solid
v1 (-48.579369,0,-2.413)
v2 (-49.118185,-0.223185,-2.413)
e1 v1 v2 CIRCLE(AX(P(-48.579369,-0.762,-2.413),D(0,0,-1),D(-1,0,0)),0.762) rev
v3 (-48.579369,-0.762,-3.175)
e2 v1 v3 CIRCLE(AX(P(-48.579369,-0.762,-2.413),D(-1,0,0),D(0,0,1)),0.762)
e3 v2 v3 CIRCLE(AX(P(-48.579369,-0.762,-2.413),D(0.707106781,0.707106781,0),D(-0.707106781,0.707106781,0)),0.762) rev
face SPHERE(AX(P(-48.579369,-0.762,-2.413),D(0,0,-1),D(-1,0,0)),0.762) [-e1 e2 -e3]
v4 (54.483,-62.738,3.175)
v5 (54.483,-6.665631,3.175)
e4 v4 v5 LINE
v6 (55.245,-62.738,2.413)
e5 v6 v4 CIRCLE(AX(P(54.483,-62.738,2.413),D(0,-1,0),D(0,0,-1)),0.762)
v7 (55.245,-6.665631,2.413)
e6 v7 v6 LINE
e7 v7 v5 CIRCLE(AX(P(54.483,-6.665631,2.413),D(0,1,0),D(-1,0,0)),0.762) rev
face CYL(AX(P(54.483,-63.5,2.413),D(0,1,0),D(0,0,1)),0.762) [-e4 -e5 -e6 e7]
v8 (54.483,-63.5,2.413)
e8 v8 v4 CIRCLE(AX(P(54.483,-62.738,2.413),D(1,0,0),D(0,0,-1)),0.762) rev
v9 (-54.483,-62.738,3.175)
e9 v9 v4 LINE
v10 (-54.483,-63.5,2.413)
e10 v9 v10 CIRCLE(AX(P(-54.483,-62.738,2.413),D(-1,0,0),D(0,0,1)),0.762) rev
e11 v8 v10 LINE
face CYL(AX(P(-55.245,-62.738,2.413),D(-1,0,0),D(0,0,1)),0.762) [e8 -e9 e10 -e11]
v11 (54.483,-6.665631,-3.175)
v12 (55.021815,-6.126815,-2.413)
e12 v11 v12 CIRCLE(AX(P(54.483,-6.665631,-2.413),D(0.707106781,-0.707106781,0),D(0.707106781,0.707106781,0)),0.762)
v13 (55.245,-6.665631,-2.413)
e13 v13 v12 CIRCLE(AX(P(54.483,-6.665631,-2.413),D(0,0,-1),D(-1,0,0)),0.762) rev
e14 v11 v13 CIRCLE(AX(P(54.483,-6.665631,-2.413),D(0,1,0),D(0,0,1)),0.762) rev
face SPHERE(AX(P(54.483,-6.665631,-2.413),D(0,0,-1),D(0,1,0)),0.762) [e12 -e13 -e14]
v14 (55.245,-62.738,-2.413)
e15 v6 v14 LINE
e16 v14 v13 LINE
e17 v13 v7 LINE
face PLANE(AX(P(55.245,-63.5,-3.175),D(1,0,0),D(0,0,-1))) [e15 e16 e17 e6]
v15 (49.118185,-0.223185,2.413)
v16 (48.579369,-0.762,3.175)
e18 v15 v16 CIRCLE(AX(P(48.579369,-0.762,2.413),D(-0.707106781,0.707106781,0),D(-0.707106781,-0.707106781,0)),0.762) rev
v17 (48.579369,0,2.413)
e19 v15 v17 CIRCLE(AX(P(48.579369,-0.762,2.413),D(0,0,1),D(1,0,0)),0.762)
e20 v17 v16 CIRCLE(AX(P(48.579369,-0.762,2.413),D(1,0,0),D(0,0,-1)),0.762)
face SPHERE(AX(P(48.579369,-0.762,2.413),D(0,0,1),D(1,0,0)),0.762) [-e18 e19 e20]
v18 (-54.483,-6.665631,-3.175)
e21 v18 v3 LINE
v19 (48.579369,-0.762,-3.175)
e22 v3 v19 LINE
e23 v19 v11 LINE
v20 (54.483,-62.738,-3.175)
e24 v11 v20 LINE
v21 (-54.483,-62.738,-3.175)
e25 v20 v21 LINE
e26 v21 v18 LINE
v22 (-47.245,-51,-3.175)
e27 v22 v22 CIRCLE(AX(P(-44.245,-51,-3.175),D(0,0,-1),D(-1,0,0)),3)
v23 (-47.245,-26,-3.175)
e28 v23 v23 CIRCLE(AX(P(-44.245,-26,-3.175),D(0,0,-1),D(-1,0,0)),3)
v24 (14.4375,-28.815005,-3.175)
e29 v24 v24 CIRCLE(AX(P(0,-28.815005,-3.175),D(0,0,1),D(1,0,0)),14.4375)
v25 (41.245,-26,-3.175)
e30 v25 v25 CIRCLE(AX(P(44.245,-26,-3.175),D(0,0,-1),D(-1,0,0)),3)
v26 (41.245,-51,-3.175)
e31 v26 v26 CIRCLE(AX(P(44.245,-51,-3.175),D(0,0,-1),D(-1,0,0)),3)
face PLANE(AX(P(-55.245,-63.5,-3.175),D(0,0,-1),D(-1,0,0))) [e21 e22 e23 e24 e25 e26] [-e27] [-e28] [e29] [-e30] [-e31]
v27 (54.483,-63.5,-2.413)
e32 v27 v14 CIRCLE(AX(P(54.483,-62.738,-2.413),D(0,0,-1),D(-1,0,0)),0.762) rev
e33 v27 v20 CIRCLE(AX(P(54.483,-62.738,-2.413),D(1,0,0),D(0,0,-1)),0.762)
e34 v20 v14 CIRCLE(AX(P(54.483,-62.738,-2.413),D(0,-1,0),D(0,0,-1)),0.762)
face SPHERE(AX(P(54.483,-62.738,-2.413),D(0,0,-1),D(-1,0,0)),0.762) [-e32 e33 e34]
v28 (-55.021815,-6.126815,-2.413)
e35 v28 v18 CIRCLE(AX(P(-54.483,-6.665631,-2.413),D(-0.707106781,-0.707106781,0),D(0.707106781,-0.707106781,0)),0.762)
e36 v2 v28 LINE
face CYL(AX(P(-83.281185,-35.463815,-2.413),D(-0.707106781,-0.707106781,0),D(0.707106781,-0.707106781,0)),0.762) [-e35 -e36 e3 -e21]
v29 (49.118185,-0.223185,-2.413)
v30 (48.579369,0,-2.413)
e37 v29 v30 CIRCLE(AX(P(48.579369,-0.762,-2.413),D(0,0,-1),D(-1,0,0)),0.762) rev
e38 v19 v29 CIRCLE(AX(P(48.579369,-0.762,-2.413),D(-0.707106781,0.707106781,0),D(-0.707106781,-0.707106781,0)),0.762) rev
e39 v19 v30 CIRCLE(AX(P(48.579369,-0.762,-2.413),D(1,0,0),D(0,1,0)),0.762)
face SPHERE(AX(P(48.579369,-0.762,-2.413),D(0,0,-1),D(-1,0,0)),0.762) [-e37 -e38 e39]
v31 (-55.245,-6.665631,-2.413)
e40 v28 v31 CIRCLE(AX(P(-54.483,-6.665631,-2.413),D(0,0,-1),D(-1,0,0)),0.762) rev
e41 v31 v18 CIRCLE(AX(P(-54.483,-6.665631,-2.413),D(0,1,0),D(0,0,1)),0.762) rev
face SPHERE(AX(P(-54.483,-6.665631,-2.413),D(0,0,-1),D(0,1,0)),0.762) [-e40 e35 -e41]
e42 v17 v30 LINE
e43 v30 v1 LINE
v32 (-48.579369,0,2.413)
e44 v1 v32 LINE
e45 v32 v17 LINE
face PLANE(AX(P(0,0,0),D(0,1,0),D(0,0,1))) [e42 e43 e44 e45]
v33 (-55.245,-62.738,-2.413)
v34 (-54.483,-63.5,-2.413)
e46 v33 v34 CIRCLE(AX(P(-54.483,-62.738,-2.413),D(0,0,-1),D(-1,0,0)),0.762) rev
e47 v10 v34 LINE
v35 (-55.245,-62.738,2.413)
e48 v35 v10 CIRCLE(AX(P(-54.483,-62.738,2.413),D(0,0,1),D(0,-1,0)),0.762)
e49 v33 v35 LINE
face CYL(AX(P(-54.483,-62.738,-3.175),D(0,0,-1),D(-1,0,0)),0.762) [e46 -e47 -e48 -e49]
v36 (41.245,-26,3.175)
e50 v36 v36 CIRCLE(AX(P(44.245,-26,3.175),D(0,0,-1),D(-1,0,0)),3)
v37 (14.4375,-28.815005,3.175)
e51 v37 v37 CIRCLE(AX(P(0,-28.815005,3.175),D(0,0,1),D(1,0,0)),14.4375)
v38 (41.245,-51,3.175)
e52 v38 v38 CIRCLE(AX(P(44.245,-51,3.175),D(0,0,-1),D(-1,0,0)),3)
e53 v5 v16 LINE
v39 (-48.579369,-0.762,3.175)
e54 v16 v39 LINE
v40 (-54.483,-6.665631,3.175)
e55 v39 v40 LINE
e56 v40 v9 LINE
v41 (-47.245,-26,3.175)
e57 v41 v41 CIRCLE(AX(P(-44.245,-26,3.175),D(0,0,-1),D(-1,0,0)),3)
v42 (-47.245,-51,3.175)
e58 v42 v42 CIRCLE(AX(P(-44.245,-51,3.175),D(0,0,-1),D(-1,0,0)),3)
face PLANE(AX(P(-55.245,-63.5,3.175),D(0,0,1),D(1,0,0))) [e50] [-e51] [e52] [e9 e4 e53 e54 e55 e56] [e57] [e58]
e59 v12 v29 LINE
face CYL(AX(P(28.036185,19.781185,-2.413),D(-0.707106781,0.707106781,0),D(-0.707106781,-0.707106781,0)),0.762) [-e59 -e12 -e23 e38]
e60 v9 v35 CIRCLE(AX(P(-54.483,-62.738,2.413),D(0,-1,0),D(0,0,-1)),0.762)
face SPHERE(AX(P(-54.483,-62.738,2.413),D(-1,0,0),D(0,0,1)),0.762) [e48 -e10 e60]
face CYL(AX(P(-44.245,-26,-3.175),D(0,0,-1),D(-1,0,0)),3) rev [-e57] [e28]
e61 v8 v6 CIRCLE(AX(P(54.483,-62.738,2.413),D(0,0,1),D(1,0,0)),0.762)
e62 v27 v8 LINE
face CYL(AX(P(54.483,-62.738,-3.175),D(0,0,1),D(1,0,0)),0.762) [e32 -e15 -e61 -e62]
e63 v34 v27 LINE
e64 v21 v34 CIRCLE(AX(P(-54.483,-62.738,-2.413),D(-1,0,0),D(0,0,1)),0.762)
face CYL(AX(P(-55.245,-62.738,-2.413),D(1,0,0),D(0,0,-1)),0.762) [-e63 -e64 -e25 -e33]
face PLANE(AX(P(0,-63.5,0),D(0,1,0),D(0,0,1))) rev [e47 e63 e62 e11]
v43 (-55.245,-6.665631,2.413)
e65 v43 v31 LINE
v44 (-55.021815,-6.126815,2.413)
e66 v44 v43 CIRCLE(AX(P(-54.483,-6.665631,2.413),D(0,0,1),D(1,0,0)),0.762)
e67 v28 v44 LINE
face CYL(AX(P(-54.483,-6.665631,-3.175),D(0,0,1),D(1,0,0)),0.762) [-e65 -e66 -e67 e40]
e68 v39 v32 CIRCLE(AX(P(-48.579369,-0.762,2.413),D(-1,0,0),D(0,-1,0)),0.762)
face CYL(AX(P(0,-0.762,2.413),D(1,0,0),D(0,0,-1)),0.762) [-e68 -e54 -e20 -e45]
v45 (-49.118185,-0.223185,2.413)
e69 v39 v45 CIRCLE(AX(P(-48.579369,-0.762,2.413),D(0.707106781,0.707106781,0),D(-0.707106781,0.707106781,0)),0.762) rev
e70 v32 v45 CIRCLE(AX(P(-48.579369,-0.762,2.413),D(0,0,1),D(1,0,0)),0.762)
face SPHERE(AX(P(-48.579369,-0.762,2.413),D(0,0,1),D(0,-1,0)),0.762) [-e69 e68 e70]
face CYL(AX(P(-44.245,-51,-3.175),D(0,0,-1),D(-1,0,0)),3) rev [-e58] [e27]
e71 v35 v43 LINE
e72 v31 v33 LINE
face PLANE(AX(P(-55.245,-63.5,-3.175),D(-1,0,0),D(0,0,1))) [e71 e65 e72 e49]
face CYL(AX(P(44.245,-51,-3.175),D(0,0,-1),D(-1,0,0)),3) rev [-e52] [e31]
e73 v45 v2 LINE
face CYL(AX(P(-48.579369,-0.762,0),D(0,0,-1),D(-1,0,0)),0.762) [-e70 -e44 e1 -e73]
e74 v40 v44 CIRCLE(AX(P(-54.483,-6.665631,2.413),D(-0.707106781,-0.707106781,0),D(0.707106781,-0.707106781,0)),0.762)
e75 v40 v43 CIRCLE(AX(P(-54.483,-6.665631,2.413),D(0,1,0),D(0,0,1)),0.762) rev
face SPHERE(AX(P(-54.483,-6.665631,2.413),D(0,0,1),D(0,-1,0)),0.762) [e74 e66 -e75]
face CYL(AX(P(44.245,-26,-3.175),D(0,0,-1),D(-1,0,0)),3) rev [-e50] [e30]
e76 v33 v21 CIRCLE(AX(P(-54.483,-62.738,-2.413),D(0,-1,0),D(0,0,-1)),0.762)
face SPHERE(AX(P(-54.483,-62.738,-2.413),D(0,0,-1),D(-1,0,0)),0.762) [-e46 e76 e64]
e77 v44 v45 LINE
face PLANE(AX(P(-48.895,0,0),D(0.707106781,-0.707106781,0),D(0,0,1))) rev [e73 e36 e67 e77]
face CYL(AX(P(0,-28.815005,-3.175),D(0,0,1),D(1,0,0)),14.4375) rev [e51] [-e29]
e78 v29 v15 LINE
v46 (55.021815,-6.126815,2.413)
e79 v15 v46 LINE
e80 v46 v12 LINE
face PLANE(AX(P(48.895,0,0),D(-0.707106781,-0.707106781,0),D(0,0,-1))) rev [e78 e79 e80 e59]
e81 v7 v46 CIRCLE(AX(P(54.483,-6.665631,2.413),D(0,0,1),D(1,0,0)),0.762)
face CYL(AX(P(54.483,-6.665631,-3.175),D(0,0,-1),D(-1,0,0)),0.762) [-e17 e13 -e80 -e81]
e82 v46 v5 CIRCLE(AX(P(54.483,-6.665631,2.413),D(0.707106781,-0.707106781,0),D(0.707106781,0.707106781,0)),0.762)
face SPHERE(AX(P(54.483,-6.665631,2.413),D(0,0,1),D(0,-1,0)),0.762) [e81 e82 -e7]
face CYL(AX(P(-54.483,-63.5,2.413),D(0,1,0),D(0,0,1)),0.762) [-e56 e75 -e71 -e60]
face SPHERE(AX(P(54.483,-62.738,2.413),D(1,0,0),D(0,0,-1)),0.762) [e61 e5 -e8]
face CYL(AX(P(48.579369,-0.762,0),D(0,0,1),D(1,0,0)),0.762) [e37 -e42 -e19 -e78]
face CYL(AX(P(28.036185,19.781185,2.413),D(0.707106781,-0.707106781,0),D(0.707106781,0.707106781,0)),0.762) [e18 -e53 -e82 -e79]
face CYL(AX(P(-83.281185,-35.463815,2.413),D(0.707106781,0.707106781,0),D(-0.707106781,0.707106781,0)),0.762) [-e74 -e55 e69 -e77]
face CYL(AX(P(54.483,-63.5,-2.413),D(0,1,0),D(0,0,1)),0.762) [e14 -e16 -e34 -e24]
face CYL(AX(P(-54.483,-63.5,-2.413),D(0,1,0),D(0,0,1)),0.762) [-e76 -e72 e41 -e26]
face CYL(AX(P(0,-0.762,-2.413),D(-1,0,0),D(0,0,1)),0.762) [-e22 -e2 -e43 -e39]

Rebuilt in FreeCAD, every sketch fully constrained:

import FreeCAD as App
import Part
import Sketcher
from FreeCAD import Vector
Q = App.Units.Quantity


def edges_at(feature, points):
    """Names of the edges that pass closest to the given points."""
    edges = feature.Shape.Edges
    near = lambda p: min(range(len(edges)), key=lambda i: edges[i].distToShape(Part.Vertex(*p))[0])
    return sorted({f"Edge{near(p) + 1}" for p in points})


def add_polygon(sketch, points):
    """Adds a closed chain of lines whose ends are joined by coincident constraints."""
    first, n = sketch.GeometryCount, len(points)
    for a, b in zip(points, points[1:] + points[:1]):
        sketch.addGeometry(Part.LineSegment(App.Vector(*a, 0), App.Vector(*b, 0)), False)
    for i in range(n):
        sketch.addConstraint(Sketcher.Constraint("Coincident", first + i, 2, first + (i + 1) % n, 1))

doc = App.newDocument("Part")
body = doc.addObject("PartDesign::Body", "Body")

# Sketch on XZ plane
sketch1 = body.newObject("Sketcher::SketchObject", "Sketch")
sketch1.AttachmentSupport = (doc.getObject("XZ_Plane"), [""])
sketch1.MapMode = "FlatFace"
add_polygon(sketch1, [(-55, -3), (-55, 3), (55, 3), (55, -3)])  # lines 0-3
sketch1.addConstraint(Sketcher.Constraint("Vertical", 0))
sketch1.addConstraint(Sketcher.Constraint("Horizontal", 1))
sketch1.addConstraint(Sketcher.Constraint("Vertical", 2))
sketch1.addConstraint(Sketcher.Constraint("Horizontal", 3))
sketch1.addConstraint(Sketcher.Constraint("Symmetric", 0, 2, 2, 2, -1, 1))
sketch1.addConstraint(Sketcher.Constraint("DistanceX", 1, 1, 1, 2, Q("4.35 in")))
sketch1.addConstraint(Sketcher.Constraint("DistanceY", 0, 1, 0, 2, Q("0.25 in")))
pad1 = body.newObject("PartDesign::Pad", "Pad")
pad1.Profile = sketch1
pad1.Length = Q("2.5 in")

# Sketch on XY plane
sketch2 = body.newObject("Sketcher::SketchObject", "Sketch001")
sketch2.AttachmentSupport = (doc.getObject("XY_Plane"), [""])
sketch2.MapMode = "FlatFace"
sketch2.AttachmentOffset = App.Placement(Vector(0, 0, 0.125 * 25.4), App.Rotation())
sketch2.addGeometry(Part.Circle(Vector(0, -29, 0), Vector(0, 0, 1), 14), False)
sketch2.addConstraint(Sketcher.Constraint("PointOnObject", 0, 3, -2))
sketch2.addConstraint(Sketcher.Constraint("Diameter", 0, 28.875))
sketch2.addConstraint(Sketcher.Constraint("DistanceY", 0, 3, -1, 1, 28.815005))
pocket1 = body.newObject("PartDesign::Pocket", "Pocket")
pocket1.Profile = sketch2
pocket1.Type = "ThroughAll"
doc.recompute()

chamfer = body.newObject("PartDesign::Chamfer", "Chamfer")
chamfer.Base = (pocket1, edges_at(pocket1, [(55.245, 0, 0), (-55.245, 0, 0)]))
chamfer.Size = Q("0.25 in")

# Sketch on XY plane
sketch3 = body.newObject("Sketcher::SketchObject", "Sketch002")
sketch3.AttachmentSupport = (doc.getObject("XY_Plane"), [""])
sketch3.MapMode = "FlatFace"
sketch3.AttachmentOffset = App.Placement(Vector(0, 0, -0.125 * 25.4), App.Rotation())
sketch3.addGeometry(Part.Circle(Vector(-44.2, -26, 0), Vector(0, 0, 1), 3), False)
sketch3.addGeometry(Part.Circle(Vector(-44.2, -51, 0), Vector(0, 0, 1), 3), False)
sketch3.addGeometry(Part.Circle(Vector(44.2, -51, 0), Vector(0, 0, 1), 3), False)
sketch3.addGeometry(Part.Circle(Vector(44.2, -26, 0), Vector(0, 0, 1), 3), False)
sketch3.addConstraint(Sketcher.Constraint("Equal", 0, 1))
sketch3.addConstraint(Sketcher.Constraint("Equal", 1, 2))
sketch3.addConstraint(Sketcher.Constraint("Equal", 2, 3))
sketch3.addConstraint(Sketcher.Constraint("Symmetric", 1, 3, 2, 3, -2))
sketch3.addConstraint(Sketcher.Constraint("Symmetric", 0, 3, 3, 3, -2))
sketch3.addConstraint(Sketcher.Constraint("Vertical", 0, 3, 1, 3))
sketch3.addConstraint(Sketcher.Constraint("Diameter", 0, 6.0))
sketch3.addConstraint(Sketcher.Constraint("DistanceX", 0, 3, -1, 1, 44.245))
sketch3.addConstraint(Sketcher.Constraint("DistanceY", 0, 3, -1, 1, 26.0))
sketch3.addConstraint(Sketcher.Constraint("DistanceY", 1, 3, -1, 1, 51.0))
doc.recompute()
hole = body.newObject("PartDesign::Hole", "Hole")
hole.Profile = sketch3
hole.ThreadType = "None"
hole.Diameter = 6
hole.DepthType = "ThroughAll"
hole.Reversed = True
doc.recompute()

fillet = body.newObject("PartDesign::Fillet", "Fillet")
fillet.Base = (hole, edges_at(hole, [
    (55.245, -63.5, 0),
    (0, -63.5, -3.175),
    (0, 0, 3.175),
    (0, 0, -3.175),
    (48.895, 0, 0),
    (-48.895, 0, 0),
    (52.07, -3.175, 3.175),
    (-52.07, -3.175, 3.175),
    (-55.245, -6.35, 0),
    (52.07, -3.175, -3.175),
    (-52.07, -3.175, -3.175),
    (55.245, -6.35, 0),
    (-55.245, -63.5, 0),
    (-55.245, -34.925, -3.175),
    (55.245, -34.925, -3.175),
    (55.245, -34.925, 3.175),
    (-55.245, -34.925, 3.175),
    (0, -63.5, 3.175),
]))
fillet.Radius = Q("0.03 in")

doc.recompute()
